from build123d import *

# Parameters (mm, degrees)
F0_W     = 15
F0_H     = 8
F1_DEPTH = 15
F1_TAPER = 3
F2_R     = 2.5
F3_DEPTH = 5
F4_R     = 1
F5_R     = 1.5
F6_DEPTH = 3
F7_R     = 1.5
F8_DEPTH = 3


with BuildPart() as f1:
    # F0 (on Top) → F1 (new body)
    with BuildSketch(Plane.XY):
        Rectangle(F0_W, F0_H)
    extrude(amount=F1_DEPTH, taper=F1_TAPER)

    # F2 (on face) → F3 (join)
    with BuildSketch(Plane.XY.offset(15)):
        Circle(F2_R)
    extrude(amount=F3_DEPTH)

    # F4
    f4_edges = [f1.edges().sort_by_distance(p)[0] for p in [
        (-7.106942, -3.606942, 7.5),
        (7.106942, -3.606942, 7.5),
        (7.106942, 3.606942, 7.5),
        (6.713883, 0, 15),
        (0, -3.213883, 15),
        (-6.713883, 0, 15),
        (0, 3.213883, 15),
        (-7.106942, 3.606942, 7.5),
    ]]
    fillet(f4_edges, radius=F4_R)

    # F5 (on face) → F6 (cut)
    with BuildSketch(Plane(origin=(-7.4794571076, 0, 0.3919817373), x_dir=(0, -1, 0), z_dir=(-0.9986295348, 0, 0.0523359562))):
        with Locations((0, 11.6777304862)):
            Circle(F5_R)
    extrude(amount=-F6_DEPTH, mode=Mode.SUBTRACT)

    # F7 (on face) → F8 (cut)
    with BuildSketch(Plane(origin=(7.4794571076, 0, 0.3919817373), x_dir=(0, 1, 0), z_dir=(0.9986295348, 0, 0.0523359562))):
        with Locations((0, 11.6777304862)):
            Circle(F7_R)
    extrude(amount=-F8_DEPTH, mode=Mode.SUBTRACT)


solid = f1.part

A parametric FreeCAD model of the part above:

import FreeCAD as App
import Part
import Sketcher
Q = App.Units.Quantity


def edges_at(feature, points):
    """Names of the edges that pass closest to the given points."""
    edges = feature.Shape.Edges
    near = lambda p: min(range(len(edges)), key=lambda i: edges[i].distToShape(Part.Vertex(*p))[0])
    return sorted({f"Edge{near(p) + 1}" for p in points})

doc = App.newDocument("Part")
body = doc.addObject("PartDesign::Body", "Body")

# Sketch on XY plane
sketch1 = body.newObject("Sketcher::SketchObject", "Sketch")
sketch1.AttachmentSupport = (doc.getObject("XY_Plane"), [""])
sketch1.MapMode = "FlatFace"
sketch1.addGeometry([
    Part.LineSegment(App.Vector(-8, 4, 0), App.Vector(-8, -4, 0)),
    Part.LineSegment(App.Vector(-8, -4, 0), App.Vector(8, -4, 0)),
    Part.LineSegment(App.Vector(8, -4, 0), App.Vector(8, 4, 0)),
    Part.LineSegment(App.Vector(8, 4, 0), App.Vector(-8, 4, 0)),
], False)
sketch1.addConstraint([
    Sketcher.Constraint("Coincident", 0, 2, 1, 1),
    Sketcher.Constraint("Coincident", 1, 2, 2, 1),
    Sketcher.Constraint("Coincident", 2, 2, 3, 1),
    Sketcher.Constraint("Coincident", 3, 2, 0, 1),
    Sketcher.Constraint("Vertical", 0),
    Sketcher.Constraint("Horizontal", 1),
    Sketcher.Constraint("Vertical", 2),
    Sketcher.Constraint("Horizontal", 3),
    Sketcher.Constraint("Symmetric", 0, 2, 2, 2, -1, 1),
    Sketcher.Constraint("DistanceX", 1, 1, 1, 2, Q("15 mm")),
    Sketcher.Constraint("DistanceY", 0, 2, 0, 1, Q("8 mm")),
])
pad1 = body.newObject("PartDesign::Pad", "Pad")
pad1.Profile = sketch1
pad1.Length = 15
pad1.TaperAngle = -3

# Sketch on XY plane
sketch2 = body.newObject("Sketcher::SketchObject", "Sketch001")
sketch2.AttachmentSupport = (doc.getObject("XY_Plane"), [""])
sketch2.MapMode = "FlatFace"
sketch2.AttachmentOffset = App.Placement(App.Vector(0, 0, 15), App.Rotation())
sketch2.addGeometry(Part.Circle(App.Vector(0, 0, 0), App.Vector(0, 0, 1), 2.5), False)
sketch2.addConstraint([
    Sketcher.Constraint("Coincident", 0, 3, -1, 1),
    Sketcher.Constraint("Diameter", 0, Q("5 mm")),
])
pad2 = body.newObject("PartDesign::Pad", "Pad001")
pad2.Profile = sketch2
pad2.Length = 5
doc.recompute()

fillet = body.newObject("PartDesign::Fillet", "Fillet")
fillet.Base = (pad2, edges_at(pad2, [
    (-7.107, -3.607, 7.5),
    (7.107, -3.607, 7.5),
    (7.107, 3.607, 7.5),
    (6.714, 0, 15),
    (0, -3.214, 15),
    (-6.714, 0, 15),
    (0, 3.214, 15),
    (-7.107, 3.607, 7.5),
]))
fillet.Radius = 1

# Sketch on an angled plane
sketch3 = body.newObject("Sketcher::SketchObject", "Sketch002")
sketch3.Placement = App.Placement(App.Vector(-7.479457, 0, 0.391982), App.Rotation(App.Vector(0, -1, 0), App.Vector(0.052335956, 0, 0.998629535), App.Vector(-0.998629535, 0, 0.052335956), "ZXY"))
sketch3.addGeometry(Part.Circle(App.Vector(0, 11.7, 0), App.Vector(0, 0, 1), 1.5), False)
sketch3.addConstraint([
    Sketcher.Constraint("PointOnObject", 0, 3, -2),
    Sketcher.Constraint("Diameter", 0, Q("3 mm")),
    Sketcher.Constraint("DistanceY", -1, 1, 0, 3, Q("11.67773 mm")),
])
pocket1 = body.newObject("PartDesign::Pocket", "Pocket")
pocket1.Profile = sketch3
pocket1.Length = 3

# Sketch on an angled plane
sketch4 = body.newObject("Sketcher::SketchObject", "Sketch003")
sketch4.Placement = App.Placement(App.Vector(7.479457, 0, 0.391982), App.Rotation(App.Vector(0, 1, 0), App.Vector(-0.052335956, 0, 0.998629535), App.Vector(0.998629535, 0, 0.052335956), "ZXY"))
sketch4.addGeometry(Part.Circle(App.Vector(0, 11.7, 0), App.Vector(0, 0, 1), 1.5), False)
sketch4.addConstraint([
    Sketcher.Constraint("PointOnObject", 0, 3, -2),
    Sketcher.Constraint("Diameter", 0, Q("3 mm")),
    Sketcher.Constraint("DistanceY", -1, 1, 0, 3, Q("11.67773 mm")),
])
pocket2 = body.newObject("PartDesign::Pocket", "Pocket001")
pocket2.Profile = sketch4
pocket2.Length = 3

doc.recompute()
